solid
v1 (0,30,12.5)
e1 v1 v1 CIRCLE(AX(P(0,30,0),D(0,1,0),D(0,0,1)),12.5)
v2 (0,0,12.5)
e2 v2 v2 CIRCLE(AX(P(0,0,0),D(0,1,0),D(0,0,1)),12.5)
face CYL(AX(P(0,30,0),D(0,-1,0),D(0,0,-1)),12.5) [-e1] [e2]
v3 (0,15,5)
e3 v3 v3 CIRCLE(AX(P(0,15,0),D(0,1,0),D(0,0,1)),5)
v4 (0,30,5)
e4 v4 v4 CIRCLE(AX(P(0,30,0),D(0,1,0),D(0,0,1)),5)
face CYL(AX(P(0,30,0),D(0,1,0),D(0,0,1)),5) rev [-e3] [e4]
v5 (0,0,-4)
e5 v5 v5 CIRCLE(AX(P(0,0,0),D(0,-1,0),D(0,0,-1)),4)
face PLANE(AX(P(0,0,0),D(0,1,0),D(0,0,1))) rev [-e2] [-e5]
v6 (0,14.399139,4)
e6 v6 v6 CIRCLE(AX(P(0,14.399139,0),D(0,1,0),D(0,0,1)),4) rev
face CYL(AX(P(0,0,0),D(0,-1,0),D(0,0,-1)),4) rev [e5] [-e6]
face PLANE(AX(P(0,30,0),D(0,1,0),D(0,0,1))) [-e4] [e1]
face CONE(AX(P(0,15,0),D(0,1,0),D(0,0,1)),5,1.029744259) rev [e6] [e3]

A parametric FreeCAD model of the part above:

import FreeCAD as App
import Part
import Sketcher
from FreeCAD import Vector

doc = App.newDocument("Part")
params = doc.addObject("Spreadsheet::Sheet", "Params")
for row, (alias, value) in enumerate([
    ("sketch1_diameter", "25 mm"),
    ("pad1_length", "30 mm"),
    ("sketch2_diameter", "10 mm"),
    ("hole_diameter", "10 mm"),
    ("hole_depth", "15 mm"),
    ("sketch3_diameter", "8 mm"),
    ("hole2_diameter", "8 mm"),
    ("hole2_depth", "15 mm"),
], start=1):
    params.set(f"A{row}", alias)
    params.set(f"B{row}", "=" + value)
    params.setAlias(f"B{row}", alias)

body = doc.addObject("PartDesign::Body", "Body")

sketch1 = doc.addObject("Sketcher::SketchObject", "Sketch")
body.addObject(sketch1)
sketch1.AttachmentSupport = (doc.XZ_Plane, [""])
sketch1.MapMode = "FlatFace"
sketch1.addGeometry(Part.Circle(Vector(0, 0, 0), Vector(0, 0, 1), 12.5), False)
sketch1.addConstraint([
    Sketcher.Constraint("Coincident", 0, 3, -1, 1),
    Sketcher.Constraint("Diameter", 0, 25.0),
])
sketch1.setExpression("Constraints[1]", "Params.sketch1_diameter")
pad1 = doc.addObject("PartDesign::Pad", "Pad")
body.addObject(pad1)
pad1.Profile = sketch1
pad1.setExpression("Length", "Params.pad1_length")
pad1.Reversed = True

sketch2 = doc.addObject("Sketcher::SketchObject", "Sketch001")
body.addObject(sketch2)
sketch2.AttachmentSupport = (doc.XZ_Plane, [""])
sketch2.MapMode = "FlatFace"
sketch2.AttachmentOffset = App.Placement(Vector(0, 0, -30), App.Rotation())
sketch2.addGeometry(Part.Circle(Vector(0, 0, 0), Vector(0, 0, 1), 5), False)
sketch2.addConstraint([
    Sketcher.Constraint("Coincident", 0, 3, -1, 1),
    Sketcher.Constraint("Diameter", 0, 10.0),
])
sketch2.setExpression("Constraints[1]", "Params.sketch2_diameter")
doc.recompute()
hole = doc.addObject("PartDesign::Hole", "Hole")
body.addObject(hole)
hole.Profile = sketch2
hole.ThreadType = "None"
hole.setExpression("Diameter", "Params.hole_diameter")
hole.DepthType = "Dimension"
hole.setExpression("Depth", "Params.hole_depth")
hole.DrillPoint = "Angled"
hole.DrillPointAngle = 118
hole.Reversed = True

sketch3 = doc.addObject("Sketcher::SketchObject", "Sketch002")
body.addObject(sketch3)
sketch3.AttachmentSupport = (doc.XZ_Plane, [""])
sketch3.MapMode = "FlatFace"
sketch3.addGeometry(Part.Circle(Vector(0, 0, 0), Vector(0, 0, 1), 4), False)
sketch3.addConstraint([
    Sketcher.Constraint("Coincident", 0, 3, -1, 1),
    Sketcher.Constraint("Diameter", 0, 8.0),
])
sketch3.setExpression("Constraints[1]", "Params.sketch3_diameter")
doc.recompute()
hole2 = doc.addObject("PartDesign::Hole", "Hole001")
body.addObject(hole2)
hole2.Profile = sketch3
hole2.ThreadType = "None"
hole2.setExpression("Diameter", "Params.hole2_diameter")
hole2.DepthType = "Dimension"
hole2.setExpression("Depth", "Params.hole2_depth")
hole2.DrillPoint = "Angled"
hole2.DrillPointAngle = 118

doc.recompute()
